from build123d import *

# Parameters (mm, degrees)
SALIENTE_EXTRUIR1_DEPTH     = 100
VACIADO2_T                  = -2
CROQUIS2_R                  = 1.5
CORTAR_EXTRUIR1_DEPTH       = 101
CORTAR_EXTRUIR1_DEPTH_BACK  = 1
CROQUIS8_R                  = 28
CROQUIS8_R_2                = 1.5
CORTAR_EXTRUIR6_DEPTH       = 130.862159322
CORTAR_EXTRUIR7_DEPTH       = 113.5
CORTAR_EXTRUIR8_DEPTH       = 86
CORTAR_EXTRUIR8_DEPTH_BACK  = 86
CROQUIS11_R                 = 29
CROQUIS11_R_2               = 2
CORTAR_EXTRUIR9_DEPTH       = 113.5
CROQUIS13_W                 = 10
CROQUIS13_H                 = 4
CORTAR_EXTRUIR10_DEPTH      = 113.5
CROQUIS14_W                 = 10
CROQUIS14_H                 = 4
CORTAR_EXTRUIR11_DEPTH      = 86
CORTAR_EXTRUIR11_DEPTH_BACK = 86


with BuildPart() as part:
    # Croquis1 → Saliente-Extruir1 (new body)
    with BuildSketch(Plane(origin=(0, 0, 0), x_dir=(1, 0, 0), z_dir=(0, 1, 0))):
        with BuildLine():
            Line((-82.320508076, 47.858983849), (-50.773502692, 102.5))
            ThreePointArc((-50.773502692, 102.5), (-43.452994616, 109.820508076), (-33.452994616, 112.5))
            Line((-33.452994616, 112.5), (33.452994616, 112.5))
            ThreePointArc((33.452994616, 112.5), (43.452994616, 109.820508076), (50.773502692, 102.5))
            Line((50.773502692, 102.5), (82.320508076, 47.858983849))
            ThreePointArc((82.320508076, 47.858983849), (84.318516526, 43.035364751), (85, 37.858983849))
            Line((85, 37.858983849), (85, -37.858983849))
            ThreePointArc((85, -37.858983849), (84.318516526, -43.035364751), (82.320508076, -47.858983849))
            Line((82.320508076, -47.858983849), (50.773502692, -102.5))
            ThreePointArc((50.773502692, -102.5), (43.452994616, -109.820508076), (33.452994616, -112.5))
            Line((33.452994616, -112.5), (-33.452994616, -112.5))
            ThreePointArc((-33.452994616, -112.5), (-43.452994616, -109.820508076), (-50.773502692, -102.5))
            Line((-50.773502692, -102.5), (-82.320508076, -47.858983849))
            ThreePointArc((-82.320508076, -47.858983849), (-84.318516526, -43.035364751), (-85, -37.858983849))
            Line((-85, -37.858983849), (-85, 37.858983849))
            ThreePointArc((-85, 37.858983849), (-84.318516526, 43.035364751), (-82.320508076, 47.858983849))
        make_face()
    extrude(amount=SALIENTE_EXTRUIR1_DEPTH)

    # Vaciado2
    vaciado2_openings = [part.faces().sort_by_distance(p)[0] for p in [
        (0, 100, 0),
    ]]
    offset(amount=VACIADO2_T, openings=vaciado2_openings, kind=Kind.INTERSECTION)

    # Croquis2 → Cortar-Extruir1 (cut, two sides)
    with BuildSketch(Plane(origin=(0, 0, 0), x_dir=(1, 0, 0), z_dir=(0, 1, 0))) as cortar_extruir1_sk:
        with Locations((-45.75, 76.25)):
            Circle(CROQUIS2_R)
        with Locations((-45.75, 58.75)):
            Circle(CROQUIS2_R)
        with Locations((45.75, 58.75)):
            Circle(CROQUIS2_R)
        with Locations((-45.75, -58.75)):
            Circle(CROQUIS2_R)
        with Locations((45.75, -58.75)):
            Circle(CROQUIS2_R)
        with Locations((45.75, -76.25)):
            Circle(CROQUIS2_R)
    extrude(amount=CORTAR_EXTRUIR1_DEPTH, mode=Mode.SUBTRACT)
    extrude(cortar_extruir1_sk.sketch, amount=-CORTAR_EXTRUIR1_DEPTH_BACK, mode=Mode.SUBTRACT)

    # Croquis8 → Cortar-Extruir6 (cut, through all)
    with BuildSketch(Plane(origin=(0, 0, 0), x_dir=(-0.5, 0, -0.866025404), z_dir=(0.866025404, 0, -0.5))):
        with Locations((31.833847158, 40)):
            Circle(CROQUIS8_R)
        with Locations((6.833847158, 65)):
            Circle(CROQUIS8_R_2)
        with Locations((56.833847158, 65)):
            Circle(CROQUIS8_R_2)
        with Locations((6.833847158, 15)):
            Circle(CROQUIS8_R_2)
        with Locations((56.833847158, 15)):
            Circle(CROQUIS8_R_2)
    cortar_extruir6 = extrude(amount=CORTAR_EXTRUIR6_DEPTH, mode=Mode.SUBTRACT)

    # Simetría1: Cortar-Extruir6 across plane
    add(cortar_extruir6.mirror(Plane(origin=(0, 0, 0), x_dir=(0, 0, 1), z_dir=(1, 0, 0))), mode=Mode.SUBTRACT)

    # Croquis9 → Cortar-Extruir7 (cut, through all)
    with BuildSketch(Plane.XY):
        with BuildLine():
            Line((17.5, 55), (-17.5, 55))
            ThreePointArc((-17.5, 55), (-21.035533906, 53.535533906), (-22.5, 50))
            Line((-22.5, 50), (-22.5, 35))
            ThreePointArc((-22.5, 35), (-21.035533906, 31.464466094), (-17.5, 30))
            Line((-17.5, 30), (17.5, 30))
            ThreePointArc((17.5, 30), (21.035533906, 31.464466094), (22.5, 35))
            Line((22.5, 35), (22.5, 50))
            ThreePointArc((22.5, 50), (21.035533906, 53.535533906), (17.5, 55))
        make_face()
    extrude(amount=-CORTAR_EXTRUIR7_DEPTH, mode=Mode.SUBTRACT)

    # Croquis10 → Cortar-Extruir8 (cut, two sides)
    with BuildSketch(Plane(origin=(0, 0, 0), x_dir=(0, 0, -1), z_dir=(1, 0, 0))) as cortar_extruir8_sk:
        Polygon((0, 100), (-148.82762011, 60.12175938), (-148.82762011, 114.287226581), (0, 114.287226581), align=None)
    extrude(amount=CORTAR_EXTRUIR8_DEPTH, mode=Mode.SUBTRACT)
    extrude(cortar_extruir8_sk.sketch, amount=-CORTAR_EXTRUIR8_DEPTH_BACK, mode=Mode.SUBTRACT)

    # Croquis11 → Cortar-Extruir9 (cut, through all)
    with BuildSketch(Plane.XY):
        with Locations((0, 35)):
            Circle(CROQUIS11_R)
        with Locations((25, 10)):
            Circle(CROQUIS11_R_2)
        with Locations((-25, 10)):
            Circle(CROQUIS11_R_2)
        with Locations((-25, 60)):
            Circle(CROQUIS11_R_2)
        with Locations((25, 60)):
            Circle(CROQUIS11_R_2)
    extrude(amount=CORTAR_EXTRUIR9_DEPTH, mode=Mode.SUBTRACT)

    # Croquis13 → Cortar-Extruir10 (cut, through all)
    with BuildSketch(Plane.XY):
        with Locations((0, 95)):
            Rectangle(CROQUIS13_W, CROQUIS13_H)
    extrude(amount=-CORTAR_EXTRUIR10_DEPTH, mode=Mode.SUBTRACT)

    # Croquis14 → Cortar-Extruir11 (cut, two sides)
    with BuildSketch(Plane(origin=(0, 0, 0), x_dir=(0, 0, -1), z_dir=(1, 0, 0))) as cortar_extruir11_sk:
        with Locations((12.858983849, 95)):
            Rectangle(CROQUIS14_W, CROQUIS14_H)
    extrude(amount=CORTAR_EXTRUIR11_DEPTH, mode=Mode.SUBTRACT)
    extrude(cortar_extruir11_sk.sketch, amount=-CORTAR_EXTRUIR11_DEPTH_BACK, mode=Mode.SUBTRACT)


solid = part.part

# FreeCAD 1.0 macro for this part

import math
import FreeCAD as App
import Part
import Sketcher
Q = App.Units.Quantity


def faces_at(feature, points):
    """Names of the faces that lie closest to the given points."""
    faces = feature.Shape.Faces
    near = lambda p: min(range(len(faces)), key=lambda i: faces[i].distToShape(Part.Vertex(*p))[0])
    return sorted({f"Face{near(p) + 1}" for p in points})


def add_polygon(sketch, points):
    """Adds a closed chain of lines whose ends are joined by coincident constraints."""
    first, n = sketch.GeometryCount, len(points)
    for a, b in zip(points, points[1:] + points[:1]):
        sketch.addGeometry(Part.LineSegment(App.Vector(*a, 0), App.Vector(*b, 0)), False)
    for i in range(n):
        sketch.addConstraint(Sketcher.Constraint("Coincident", first + i, 2, first + (i + 1) % n, 1))

doc = App.newDocument("Part")
body = doc.addObject("PartDesign::Body", "Body")

sketch1 = body.newObject("Sketcher::SketchObject", "Sketch")
sketch1.AttachmentSupport = (doc.getObject("XZ_Plane"), [""])
sketch1.MapMode = "FlatFace"
sketch1.addGeometry([
    Part.LineSegment(App.Vector(-50.773503, -102.5, 0), App.Vector(-82.320508, -47.858984, 0)),
    Part.ArcOfCircle(Part.Circle(App.Vector(-65, -37.858984, 0), App.Vector(0, 0, 1), 20), math.radians(180), math.radians(210)),
    Part.LineSegment(App.Vector(-85, -37.858984, 0), App.Vector(-85, 37.858984, 0)),
    Part.ArcOfCircle(Part.Circle(App.Vector(-65, 37.858984, 0), App.Vector(0, 0, 1), 20), math.radians(150), math.radians(180)),
    Part.LineSegment(App.Vector(-82.320508, 47.858984, 0), App.Vector(-50.773503, 102.5, 0)),
    Part.ArcOfCircle(Part.Circle(App.Vector(-33.452995, 92.5, 0), App.Vector(0, 0, 1), 20), math.radians(90), math.radians(150)),
    Part.LineSegment(App.Vector(-33.452995, 112.5, 0), App.Vector(33.452995, 112.5, 0)),
    Part.ArcOfCircle(Part.Circle(App.Vector(33.452995, 92.5, 0), App.Vector(0, 0, 1), 20), math.radians(30), math.radians(90)),
    Part.LineSegment(App.Vector(50.773503, 102.5, 0), App.Vector(82.320508, 47.858984, 0)),
    Part.ArcOfCircle(Part.Circle(App.Vector(65, 37.858984, 0), App.Vector(0, 0, 1), 20), math.radians(0), math.radians(30)),
    Part.LineSegment(App.Vector(85, 37.858984, 0), App.Vector(85, -37.858984, 0)),
    Part.ArcOfCircle(Part.Circle(App.Vector(65, -37.858984, 0), App.Vector(0, 0, 1), 20), math.radians(-30), math.radians(0)),
    Part.LineSegment(App.Vector(82.320508, -47.858984, 0), App.Vector(50.773503, -102.5, 0)),
    Part.ArcOfCircle(Part.Circle(App.Vector(33.452995, -92.5, 0), App.Vector(0, 0, 1), 20), math.radians(-90), math.radians(-30)),
    Part.LineSegment(App.Vector(33.452995, -112.5, 0), App.Vector(-33.452995, -112.5, 0)),
    Part.ArcOfCircle(Part.Circle(App.Vector(-33.452995, -92.5, 0), App.Vector(0, 0, 1), 20), math.radians(-150), math.radians(-90)),
], False)
sketch1.addConstraint([
    Sketcher.Constraint("Tangent", 0, 2, 1, 2),
    Sketcher.Constraint("Tangent", 1, 1, 2, 1),
    Sketcher.Constraint("Tangent", 2, 2, 3, 2),
    Sketcher.Constraint("Tangent", 3, 1, 4, 1),
    Sketcher.Constraint("Tangent", 4, 2, 5, 2),
    Sketcher.Constraint("Tangent", 5, 1, 6, 1),
    Sketcher.Constraint("Tangent", 6, 2, 7, 2),
    Sketcher.Constraint("Tangent", 7, 1, 8, 1),
    Sketcher.Constraint("Tangent", 8, 2, 9, 2),
    Sketcher.Constraint("Tangent", 9, 1, 10, 1),
    Sketcher.Constraint("Tangent", 10, 2, 11, 2),
    Sketcher.Constraint("Tangent", 11, 1, 12, 1),
    Sketcher.Constraint("Tangent", 12, 2, 13, 2),
    Sketcher.Constraint("Tangent", 13, 1, 14, 1),
    Sketcher.Constraint("Tangent", 14, 2, 15, 2),
    Sketcher.Constraint("Tangent", 15, 1, 0, 1),
    Sketcher.Constraint("Vertical", 2),
    Sketcher.Constraint("Horizontal", 6),
    Sketcher.Constraint("Vertical", 10),
    Sketcher.Constraint("Horizontal", 14),
    Sketcher.Constraint("Equal", 1, 3),
    Sketcher.Constraint("Equal", 3, 5),
    Sketcher.Constraint("Equal", 5, 7),
    Sketcher.Constraint("Equal", 7, 9),
    Sketcher.Constraint("Equal", 9, 11),
    Sketcher.Constraint("Equal", 11, 13),
    Sketcher.Constraint("Equal", 13, 15),
    Sketcher.Constraint("Symmetric", 1, 3, 9, 3, -1, 1),
    Sketcher.Constraint("Symmetric", 5, 3, 13, 3, -1, 1),
    Sketcher.Constraint("Symmetric", 4, 2, 7, 1, -2),
    Sketcher.Constraint("Symmetric", 0, 2, 11, 1, -2),
    Sketcher.Constraint("Radius", 1, Q("20 mm")),
    Sketcher.Constraint("Angle", 0, Q("120 deg")),
    Sketcher.Constraint("DistanceX", 1, 3, -1, 1, Q("65 mm")),
    Sketcher.Constraint("DistanceY", 13, 3, 7, 3, Q("185 mm")),
    Sketcher.Constraint("DistanceX", 6, 1, 6, 2, Q("66.905989 mm")),
])
pad1 = body.newObject("PartDesign::Pad", "Pad")
pad1.Profile = sketch1
pad1.Length = 100
pad1.Reversed = True
doc.recompute()

thickness = body.newObject("PartDesign::Thickness", "Thickness")
thickness.Base = (pad1, faces_at(pad1, [(0, 100, 0)]))
thickness.Value = 2
thickness.Reversed = True
thickness.Join = "Intersection"

sketch2 = body.newObject("Sketcher::SketchObject", "Sketch001")
sketch2.AttachmentSupport = (doc.getObject("XZ_Plane"), [""])
sketch2.MapMode = "FlatFace"
sketch2.addGeometry([
    Part.Circle(App.Vector(-45.75, -76.25, 0), App.Vector(0, 0, 1), 1.5),
    Part.Circle(App.Vector(-45.75, -58.75, 0), App.Vector(0, 0, 1), 1.5),
    Part.Circle(App.Vector(45.75, -58.75, 0), App.Vector(0, 0, 1), 1.5),
    Part.Circle(App.Vector(-45.75, 58.75, 0), App.Vector(0, 0, 1), 1.5),
    Part.Circle(App.Vector(45.75, 58.75, 0), App.Vector(0, 0, 1), 1.5),
    Part.Circle(App.Vector(45.75, 76.25, 0), App.Vector(0, 0, 1), 1.5),
], False)
sketch2.addConstraint([
    Sketcher.Constraint("Equal", 0, 1),
    Sketcher.Constraint("Equal", 1, 2),
    Sketcher.Constraint("Equal", 2, 3),
    Sketcher.Constraint("Equal", 3, 4),
    Sketcher.Constraint("Equal", 4, 5),
    Sketcher.Constraint("Symmetric", 2, 3, 3, 3, -1, 1),
    Sketcher.Constraint("Symmetric", 1, 3, 4, 3, -1, 1),
    Sketcher.Constraint("Symmetric", 0, 3, 5, 3, -1, 1),
    Sketcher.Constraint("Symmetric", 1, 3, 2, 3, -2),
    Sketcher.Constraint("Vertical", 0, 3, 1, 3),
    Sketcher.Constraint("Diameter", 0, Q("3 mm")),
    Sketcher.Constraint("DistanceY", 0, 3, 3, 3, Q("135 mm")),
    Sketcher.Constraint("DistanceY", 0, 3, 1, 3, Q("17.5 mm")),
    Sketcher.Constraint("DistanceX", 1, 3, 2, 3, Q("91.5 mm")),
])
pocket1 = body.newObject("PartDesign::Pocket", "Pocket")
pocket1.Profile = sketch2
pocket1.Type = "ThroughAll"
pocket1.Midplane = True

sketch3 = body.newObject("Sketcher::SketchObject", "Sketch002")
sketch3.Placement = App.Placement(App.Vector(0, 0, 0), App.Rotation(App.Vector(-0.5, 0, -0.866025404), App.Vector(0, 1, 0), App.Vector(0.866025404, 0, -0.5), "ZXY"))
sketch3.addGeometry([
    Part.Circle(App.Vector(31.833847, 40, 0), App.Vector(0, 0, 1), 28),
    Part.Circle(App.Vector(6.833847, 65, 0), App.Vector(0, 0, 1), 1.5),
    Part.Circle(App.Vector(56.833847, 65, 0), App.Vector(0, 0, 1), 1.5),
    Part.Circle(App.Vector(6.833847, 15, 0), App.Vector(0, 0, 1), 1.5),
    Part.Circle(App.Vector(56.833847, 15, 0), App.Vector(0, 0, 1), 1.5),
], False)
sketch3.addConstraint([
    Sketcher.Constraint("Equal", 1, 2),
    Sketcher.Constraint("Equal", 2, 3),
    Sketcher.Constraint("Equal", 3, 4),
    Sketcher.Constraint("Horizontal", 1, 3, 2, 3),
    Sketcher.Constraint("Horizontal", 3, 3, 4, 3),
    Sketcher.Constraint("Vertical", 1, 3, 3, 3),
    Sketcher.Constraint("Vertical", 2, 3, 4, 3),
    Sketcher.Constraint("Diameter", 0, Q("56 mm")),
    Sketcher.Constraint("Diameter", 1, Q("3 mm")),
    Sketcher.Constraint("DistanceY", -1, 1, 0, 3, Q("40 mm")),
    Sketcher.Constraint("DistanceY", -1, 1, 1, 3, Q("65 mm")),
    Sketcher.Constraint("DistanceY", -1, 1, 3, 3, Q("15 mm")),
    Sketcher.Constraint("DistanceX", 1, 3, 0, 3, Q("25 mm")),
    Sketcher.Constraint("DistanceX", 0, 3, 2, 3, Q("25 mm")),
    Sketcher.Constraint("DistanceX", -1, 1, 0, 3, Q("31.833847 mm")),
])
pocket2 = body.newObject("PartDesign::Pocket", "Pocket001")
pocket2.Profile = sketch3
pocket2.Type = "ThroughAll"
pocket2.Reversed = True
doc.recompute()

mirrored = body.newObject("PartDesign::Mirrored", "Mirrored")
mirrored.Originals = [pocket2]
mirrored.MirrorPlane = (doc.getObject("YZ_Plane"), [""])
body.Tip = mirrored

sketch4 = body.newObject("Sketcher::SketchObject", "Sketch003")
sketch4.AttachmentSupport = (doc.getObject("XY_Plane"), [""])
sketch4.MapMode = "FlatFace"
sketch4.addGeometry([
    Part.LineSegment(App.Vector(17.5, 55, 0), App.Vector(-17.5, 55, 0)),
    Part.ArcOfCircle(Part.Circle(App.Vector(-17.5, 50, 0), App.Vector(0, 0, 1), 5), math.radians(90), math.radians(180)),
    Part.LineSegment(App.Vector(-22.5, 50, 0), App.Vector(-22.5, 35, 0)),
    Part.ArcOfCircle(Part.Circle(App.Vector(-17.5, 35, 0), App.Vector(0, 0, 1), 5), math.radians(180), math.radians(270)),
    Part.LineSegment(App.Vector(-17.5, 30, 0), App.Vector(17.5, 30, 0)),
    Part.ArcOfCircle(Part.Circle(App.Vector(17.5, 35, 0), App.Vector(0, 0, 1), 5), math.radians(-90), math.radians(0)),
    Part.LineSegment(App.Vector(22.5, 35, 0), App.Vector(22.5, 50, 0)),
    Part.ArcOfCircle(Part.Circle(App.Vector(17.5, 50, 0), App.Vector(0, 0, 1), 5), math.radians(0), math.radians(90)),
], False)
sketch4.addConstraint([
    Sketcher.Constraint("Tangent", 0, 2, 1, 1),
    Sketcher.Constraint("Tangent", 1, 2, 2, 1),
    Sketcher.Constraint("Tangent", 2, 2, 3, 1),
    Sketcher.Constraint("Tangent", 3, 2, 4, 1),
    Sketcher.Constraint("Tangent", 4, 2, 5, 1),
    Sketcher.Constraint("Tangent", 5, 2, 6, 1),
    Sketcher.Constraint("Tangent", 6, 2, 7, 1),
    Sketcher.Constraint("Tangent", 7, 2, 0, 1),
    Sketcher.Constraint("Horizontal", 0),
    Sketcher.Constraint("Vertical", 2),
    Sketcher.Constraint("Horizontal", 4),
    Sketcher.Constraint("Vertical", 6),
    Sketcher.Constraint("Equal", 1, 3),
    Sketcher.Constraint("Equal", 3, 5),
    Sketcher.Constraint("Equal", 5, 7),
    Sketcher.Constraint("Radius", 1, Q("5 mm")),
    Sketcher.Constraint("DistanceX", 0, 2, 0, 1, Q("35 mm")),
    Sketcher.Constraint("DistanceY", 2, 2, 2, 1, Q("15 mm")),
    Sketcher.Constraint("DistanceY", -1, 1, 1, 3, Q("50 mm")),
    Sketcher.Constraint("DistanceX", 1, 3, -1, 1, Q("17.5 mm")),
])
pocket3 = body.newObject("PartDesign::Pocket", "Pocket002")
pocket3.Profile = sketch4
pocket3.Type = "ThroughAll"

sketch5 = body.newObject("Sketcher::SketchObject", "Sketch004")
sketch5.AttachmentSupport = (doc.getObject("YZ_Plane"), [""])
sketch5.MapMode = "FlatFace"
add_polygon(sketch5, [(60.121759, 148.82762), (100, 0), (114.287227, 0), (114.287227, 148.82762)])
sketch5.addConstraint([
    Sketcher.Constraint("Horizontal", 1),
    Sketcher.Constraint("Vertical", 2),
    Sketcher.Constraint("Horizontal", 3),
    Sketcher.Constraint("PointOnObject", 0, 2, -1),
    Sketcher.Constraint("Angle", 0, Q("-75 deg")),
    Sketcher.Constraint("DistanceX", -1, 1, 0, 2, Q("100 mm")),
    Sketcher.Constraint("DistanceY", 2, 1, 2, 2, Q("148.82762 mm")),
    Sketcher.Constraint("DistanceX", 1, 1, 1, 2, Q("14.287227 mm")),
])
pocket4 = body.newObject("PartDesign::Pocket", "Pocket003")
pocket4.Profile = sketch5
pocket4.Type = "ThroughAll"
pocket4.Midplane = True

sketch6 = body.newObject("Sketcher::SketchObject", "Sketch005")
sketch6.AttachmentSupport = (doc.getObject("XY_Plane"), [""])
sketch6.MapMode = "FlatFace"
sketch6.addGeometry([
    Part.Circle(App.Vector(0, 35, 0), App.Vector(0, 0, 1), 29),
    Part.Circle(App.Vector(25, 10, 0), App.Vector(0, 0, 1), 2),
    Part.Circle(App.Vector(-25, 10, 0), App.Vector(0, 0, 1), 2),
    Part.Circle(App.Vector(-25, 60, 0), App.Vector(0, 0, 1), 2),
    Part.Circle(App.Vector(25, 60, 0), App.Vector(0, 0, 1), 2),
], False)
sketch6.addConstraint([
    Sketcher.Constraint("Equal", 1, 2),
    Sketcher.Constraint("Equal", 2, 3),
    Sketcher.Constraint("Equal", 3, 4),
    Sketcher.Constraint("Symmetric", 1, 3, 2, 3, -2),
    Sketcher.Constraint("Symmetric", 3, 3, 4, 3, -2),
    Sketcher.Constraint("PointOnObject", 0, 3, -2),
    Sketcher.Constraint("Vertical", 2, 3, 3, 3),
    Sketcher.Constraint("Diameter", 0, Q("58 mm")),
    Sketcher.Constraint("Diameter", 1, Q("4 mm")),
    Sketcher.Constraint("DistanceY", -1, 1, 0, 3, Q("35 mm")),
    Sketcher.Constraint("DistanceX", -1, 1, 1, 3, Q("25 mm")),
    Sketcher.Constraint("DistanceY", -1, 1, 1, 3, Q("10 mm")),
    Sketcher.Constraint("DistanceY", -1, 1, 3, 3, Q("60 mm")),
])
pocket5 = body.newObject("PartDesign::Pocket", "Pocket004")
pocket5.Profile = sketch6
pocket5.Type = "ThroughAll"
pocket5.Reversed = True

sketch7 = body.newObject("Sketcher::SketchObject", "Sketch006")
sketch7.AttachmentSupport = (doc.getObject("XY_Plane"), [""])
sketch7.MapMode = "FlatFace"
add_polygon(sketch7, [(-5, 97), (-5, 93), (5, 93), (5, 97)])
sketch7.addConstraint([
    Sketcher.Constraint("Vertical", 0),
    Sketcher.Constraint("Horizontal", 1),
    Sketcher.Constraint("Vertical", 2),
    Sketcher.Constraint("Horizontal", 3),
    Sketcher.Constraint("DistanceX", 1, 1, 1, 2, Q("10 mm")),
    Sketcher.Constraint("DistanceY", 0, 2, 0, 1, Q("4 mm")),
    Sketcher.Constraint("DistanceX", 0, 2, -1, 1, Q("5 mm")),
    Sketcher.Constraint("DistanceY", -1, 1, 0, 2, Q("93 mm")),
])
pocket6 = body.newObject("PartDesign::Pocket", "Pocket005")
pocket6.Profile = sketch7
pocket6.Type = "ThroughAll"

sketch8 = body.newObject("Sketcher::SketchObject", "Sketch007")
sketch8.AttachmentSupport = (doc.getObject("YZ_Plane"), [""])
sketch8.MapMode = "FlatFace"
add_polygon(sketch8, [(97, -7.858984), (93, -7.858984), (93, -17.858984), (97, -17.858984)])
sketch8.addConstraint([
    Sketcher.Constraint("Horizontal", 0),
    Sketcher.Constraint("Vertical", 1),
    Sketcher.Constraint("Horizontal", 2),
    Sketcher.Constraint("Vertical", 3),
    Sketcher.Constraint("DistanceX", 0, 2, 0, 1, Q("4 mm")),
    Sketcher.Constraint("DistanceY", 1, 2, 1, 1, Q("10 mm")),
    Sketcher.Constraint("DistanceX", -1, 1, 0, 2, Q("93 mm")),
    Sketcher.Constraint("DistanceY", 0, 2, -1, 1, Q("7.858984 mm")),
])
pocket7 = body.newObject("PartDesign::Pocket", "Pocket006")
pocket7.Profile = sketch8
pocket7.Type = "ThroughAll"
pocket7.Midplane = True

doc.recompute()
